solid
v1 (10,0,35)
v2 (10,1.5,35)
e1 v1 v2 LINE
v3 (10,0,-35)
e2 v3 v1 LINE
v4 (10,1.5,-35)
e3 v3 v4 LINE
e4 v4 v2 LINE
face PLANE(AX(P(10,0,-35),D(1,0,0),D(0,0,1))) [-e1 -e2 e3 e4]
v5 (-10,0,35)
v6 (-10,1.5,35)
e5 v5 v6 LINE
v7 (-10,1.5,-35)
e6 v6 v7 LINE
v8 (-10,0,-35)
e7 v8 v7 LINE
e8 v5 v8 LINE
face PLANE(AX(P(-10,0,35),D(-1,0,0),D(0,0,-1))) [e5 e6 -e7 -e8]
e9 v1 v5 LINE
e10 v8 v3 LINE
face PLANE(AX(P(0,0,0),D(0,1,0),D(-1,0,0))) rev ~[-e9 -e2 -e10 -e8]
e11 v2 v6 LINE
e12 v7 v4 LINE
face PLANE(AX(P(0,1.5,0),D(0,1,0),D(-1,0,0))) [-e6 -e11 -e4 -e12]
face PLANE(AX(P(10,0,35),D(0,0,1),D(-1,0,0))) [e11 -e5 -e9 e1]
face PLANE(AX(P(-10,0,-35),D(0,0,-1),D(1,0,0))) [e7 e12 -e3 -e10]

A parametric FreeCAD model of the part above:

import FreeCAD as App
import Part
import Sketcher
from FreeCAD import Vector


def add_polygon(sketch, points):
    """Adds a closed chain of lines whose ends are joined by coincident constraints."""
    first, n = sketch.GeometryCount, len(points)
    for a, b in zip(points, points[1:] + points[:1]):
        sketch.addGeometry(Part.LineSegment(App.Vector(*a, 0), App.Vector(*b, 0)), False)
    for i in range(n):
        sketch.addConstraint(Sketcher.Constraint("Coincident", first + i, 2, first + (i + 1) % n, 1))

doc = App.newDocument("Part")
body = doc.addObject("PartDesign::Body", "Body")

sketch1 = body.newObject("Sketcher::SketchObject", "Sketch")
sketch1.AttachmentSupport = (doc.getObject("XZ_Plane"), [""])
sketch1.MapMode = "FlatFace"
add_polygon(sketch1, [(10, -35), (-10, -35), (-10, 35), (10, 35)])
sketch1.addConstraint(Sketcher.Constraint("Horizontal", 0))
sketch1.addConstraint(Sketcher.Constraint("Vertical", 1))
sketch1.addConstraint(Sketcher.Constraint("Horizontal", 2))
sketch1.addConstraint(Sketcher.Constraint("Vertical", 3))
sketch1.addConstraint(Sketcher.Constraint("Symmetric", 0, 2, 2, 2, -1, 1))
sketch1.addConstraint(Sketcher.Constraint("DistanceX", 0, 2, 0, 1, 20.0))
sketch1.addConstraint(Sketcher.Constraint("DistanceY", 1, 1, 1, 2, 70.0))
pad1 = body.newObject("PartDesign::Pad", "Pad")
pad1.Profile = sketch1
pad1.Length = 1.5
pad1.Reversed = True

doc.recompute()
